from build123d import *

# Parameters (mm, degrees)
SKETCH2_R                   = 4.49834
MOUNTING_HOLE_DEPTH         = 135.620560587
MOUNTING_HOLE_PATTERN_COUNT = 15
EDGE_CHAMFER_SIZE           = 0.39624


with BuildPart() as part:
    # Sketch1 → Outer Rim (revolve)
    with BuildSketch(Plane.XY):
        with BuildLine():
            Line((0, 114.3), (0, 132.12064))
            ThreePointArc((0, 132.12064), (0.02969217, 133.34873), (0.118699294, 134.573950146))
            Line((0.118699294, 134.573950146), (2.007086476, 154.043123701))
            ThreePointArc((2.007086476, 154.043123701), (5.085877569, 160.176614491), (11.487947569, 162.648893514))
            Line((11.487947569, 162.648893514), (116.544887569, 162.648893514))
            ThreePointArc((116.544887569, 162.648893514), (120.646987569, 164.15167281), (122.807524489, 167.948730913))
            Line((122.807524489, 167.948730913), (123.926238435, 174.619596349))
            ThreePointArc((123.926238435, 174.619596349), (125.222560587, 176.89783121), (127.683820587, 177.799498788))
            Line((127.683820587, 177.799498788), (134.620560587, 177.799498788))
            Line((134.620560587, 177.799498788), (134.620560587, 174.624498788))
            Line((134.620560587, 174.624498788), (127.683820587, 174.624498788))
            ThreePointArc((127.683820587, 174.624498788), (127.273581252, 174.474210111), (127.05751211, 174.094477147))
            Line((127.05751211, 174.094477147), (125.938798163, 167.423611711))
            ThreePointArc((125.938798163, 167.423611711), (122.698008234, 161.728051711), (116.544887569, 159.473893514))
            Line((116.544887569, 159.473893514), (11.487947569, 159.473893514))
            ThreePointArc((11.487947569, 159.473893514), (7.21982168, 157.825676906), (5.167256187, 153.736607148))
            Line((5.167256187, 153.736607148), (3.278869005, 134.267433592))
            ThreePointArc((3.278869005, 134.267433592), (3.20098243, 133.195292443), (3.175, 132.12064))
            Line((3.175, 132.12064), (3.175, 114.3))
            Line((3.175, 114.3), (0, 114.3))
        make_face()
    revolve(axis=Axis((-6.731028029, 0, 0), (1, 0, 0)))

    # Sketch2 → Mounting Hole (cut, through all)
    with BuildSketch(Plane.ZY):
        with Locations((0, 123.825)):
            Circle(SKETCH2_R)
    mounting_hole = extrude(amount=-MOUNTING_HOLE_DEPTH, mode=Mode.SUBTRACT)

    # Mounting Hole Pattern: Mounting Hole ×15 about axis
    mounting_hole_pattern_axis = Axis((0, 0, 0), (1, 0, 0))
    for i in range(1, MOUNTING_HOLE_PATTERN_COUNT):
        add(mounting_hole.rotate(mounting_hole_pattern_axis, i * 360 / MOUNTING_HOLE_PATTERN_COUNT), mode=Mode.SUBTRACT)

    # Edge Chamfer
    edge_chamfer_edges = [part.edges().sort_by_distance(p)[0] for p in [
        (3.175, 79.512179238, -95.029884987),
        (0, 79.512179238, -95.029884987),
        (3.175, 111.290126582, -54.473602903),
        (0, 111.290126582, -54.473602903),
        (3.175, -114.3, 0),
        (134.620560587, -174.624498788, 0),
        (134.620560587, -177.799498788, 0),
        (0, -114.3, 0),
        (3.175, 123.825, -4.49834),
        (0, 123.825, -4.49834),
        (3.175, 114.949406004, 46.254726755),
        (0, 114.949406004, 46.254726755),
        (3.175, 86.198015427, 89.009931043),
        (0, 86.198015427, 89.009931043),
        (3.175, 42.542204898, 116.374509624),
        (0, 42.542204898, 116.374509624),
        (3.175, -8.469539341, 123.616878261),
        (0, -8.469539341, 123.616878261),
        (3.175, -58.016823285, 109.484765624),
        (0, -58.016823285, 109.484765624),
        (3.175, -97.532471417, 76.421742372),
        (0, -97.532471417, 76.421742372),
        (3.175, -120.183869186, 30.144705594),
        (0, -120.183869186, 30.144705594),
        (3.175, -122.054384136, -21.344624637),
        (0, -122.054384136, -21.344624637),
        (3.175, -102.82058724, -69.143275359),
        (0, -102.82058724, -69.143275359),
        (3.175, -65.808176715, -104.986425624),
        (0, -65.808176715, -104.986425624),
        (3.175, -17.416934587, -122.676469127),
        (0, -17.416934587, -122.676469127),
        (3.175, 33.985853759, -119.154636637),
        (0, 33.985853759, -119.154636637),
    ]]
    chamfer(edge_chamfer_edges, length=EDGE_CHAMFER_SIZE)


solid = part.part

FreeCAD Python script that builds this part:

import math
import FreeCAD as App
import Part
import Sketcher
from FreeCAD import Vector
Q = App.Units.Quantity


def edges_at(feature, points):
    """Names of the edges that pass closest to the given points."""
    edges = feature.Shape.Edges
    near = lambda p: min(range(len(edges)), key=lambda i: edges[i].distToShape(Part.Vertex(*p))[0])
    return sorted({f"Edge{near(p) + 1}" for p in points})

doc = App.newDocument("Part")
body = doc.addObject("PartDesign::Body", "Body")

# Sketch on XY plane
sketch1 = doc.addObject("Sketcher::SketchObject", "Sketch")
body.addObject(sketch1)
sketch1.AttachmentSupport = (doc.XY_Plane, [""])
sketch1.MapMode = "FlatFace"
sketch1.addGeometry([
    Part.LineSegment(Vector(0, 132.1, 0), Vector(0, 114.3, 0)),  # 0
    Part.LineSegment(Vector(0, 114.3, 0), Vector(3.2, 114.3, 0)),  # 1
    Part.LineSegment(Vector(3.2, 114.3, 0), Vector(3.2, 132.1, 0)),  # 2
    Part.ArcOfCircle(Part.Circle(Vector(25.4, 132.1, 0), Vector(0, 0, 1), 22.2), math.radians(174.46), math.radians(180)),  # 3
    Part.LineSegment(Vector(3.3, 134.3, 0), Vector(5.2, 153.7, 0)),  # 4
    Part.ArcOfCircle(Part.Circle(Vector(11.5, 153.1, 0), Vector(0, 0, 1), 6.4), math.radians(90), math.radians(174)),  # 5
    Part.LineSegment(Vector(11.5, 159.5, 0), Vector(116.5, 159.5, 0)),  # 6
    Part.ArcOfCircle(Part.Circle(Vector(116.5, 169, 0), Vector(0, 0, 1), 9.5), math.radians(-90), math.radians(-10)),  # 7
    Part.LineSegment(Vector(125.9, 167.4, 0), Vector(127.1, 174.1, 0)),  # 8
    Part.ArcOfCircle(Part.Circle(Vector(127.7, 174, 0), Vector(0, 0, 1), 0.6), math.radians(90), math.radians(170)),  # 9
    Part.LineSegment(Vector(127.7, 174.6, 0), Vector(134.6, 174.6, 0)),  # 10
    Part.LineSegment(Vector(134.6, 174.6, 0), Vector(134.6, 177.8, 0)),  # 11
    Part.LineSegment(Vector(134.6, 177.8, 0), Vector(127.7, 177.8, 0)),  # 12
    Part.ArcOfCircle(Part.Circle(Vector(127.7, 174, 0), Vector(0, 0, 1), 3.8), math.radians(90), math.radians(170)),  # 13
    Part.LineSegment(Vector(123.9, 174.6, 0), Vector(122.8, 167.9, 0)),  # 14
    Part.ArcOfCircle(Part.Circle(Vector(116.5, 169, 0), Vector(0, 0, 1), 6.4), math.radians(-90), math.radians(-10)),  # 15
    Part.LineSegment(Vector(116.5, 162.6, 0), Vector(11.5, 162.6, 0)),  # 16
    Part.ArcOfCircle(Part.Circle(Vector(11.5, 153.1, 0), Vector(0, 0, 1), 9.5), math.radians(90), math.radians(174)),  # 17
    Part.LineSegment(Vector(2, 154, 0), Vector(0.1, 134.6, 0)),  # 18
    Part.ArcOfCircle(Part.Circle(Vector(25.4, 132.1, 0), Vector(0, 0, 1), 25.4), math.radians(174.46), math.radians(180)),  # 19
], False)
sketch1.addConstraint([
    Sketcher.Constraint("Coincident", 0, 2, 1, 1),
    Sketcher.Constraint("Coincident", 1, 2, 2, 1),
    Sketcher.Constraint("Tangent", 2, 2, 3, 2),
    Sketcher.Constraint("Tangent", 3, 1, 4, 1),
    Sketcher.Constraint("Tangent", 4, 2, 5, 2),
    Sketcher.Constraint("Tangent", 5, 1, 6, 1),
    Sketcher.Constraint("Tangent", 6, 2, 7, 1),
    Sketcher.Constraint("Tangent", 7, 2, 8, 1),
    Sketcher.Constraint("Tangent", 8, 2, 9, 2),
    Sketcher.Constraint("Tangent", 9, 1, 10, 1),
    Sketcher.Constraint("Coincident", 10, 2, 11, 1),
    Sketcher.Constraint("Coincident", 11, 2, 12, 1),
    Sketcher.Constraint("Tangent", 12, 2, 13, 1),
    Sketcher.Constraint("Tangent", 13, 2, 14, 1),
    Sketcher.Constraint("Tangent", 14, 2, 15, 2),
    Sketcher.Constraint("Tangent", 15, 1, 16, 1),
    Sketcher.Constraint("Tangent", 16, 2, 17, 1),
    Sketcher.Constraint("Tangent", 17, 2, 18, 1),
    Sketcher.Constraint("Tangent", 18, 2, 19, 1),
    Sketcher.Constraint("Tangent", 19, 2, 0, 1),
    Sketcher.Constraint("Vertical", 0),
    Sketcher.Constraint("Horizontal", 1),
    Sketcher.Constraint("Vertical", 2),
    Sketcher.Constraint("Horizontal", 6),
    Sketcher.Constraint("Horizontal", 10),
    Sketcher.Constraint("Vertical", 11),
    Sketcher.Constraint("Horizontal", 12),
    Sketcher.Constraint("Horizontal", 16),
    Sketcher.Constraint("Coincident", 13, 3, 9, 3),
    Sketcher.Constraint("Coincident", 15, 3, 7, 3),
    Sketcher.Constraint("Coincident", 17, 3, 5, 3),
    Sketcher.Constraint("Coincident", 19, 3, 3, 3),
    Sketcher.Constraint("PointOnObject", 0, 2, -2),
    Sketcher.Constraint("Parallel", 8, 14),
    Sketcher.Constraint("Parallel", 4, 18),
    Sketcher.Constraint("DistanceY", -1, 1, 0, 2, Q("4.5 in")),
    Sketcher.Constraint("DistanceX", 1, 1, 1, 2, Q("0.125 in")),
    Sketcher.Constraint("Angle", 4, Q("84.46 deg")),
    Sketcher.Constraint("Angle", 8, Q("80.48 deg")),
    Sketcher.Constraint("Radius", 3, 22.237199),
    Sketcher.Constraint("DistanceX", 6, 1, 6, 2, Q("4.1361 in")),
    Sketcher.Constraint("DistanceX", 10, 1, 10, 2, Q("0.2731 in")),
    Sketcher.Constraint("DistanceY", 0, 2, 0, 1, Q("0.7016 in")),
    Sketcher.Constraint("Radius", 7, 9.525091),
    Sketcher.Constraint("Distance", 4, Q("0.7701 in")),
    Sketcher.Constraint("Distance", 8, Q("0.2663 in")),
    Sketcher.Constraint("Radius", 5, 6.350354),
    Sketcher.Constraint("Radius", 9, 0.635054),
])
revolution = doc.addObject("PartDesign::Revolution", "Revolution")
body.addObject(revolution)
revolution.Profile = sketch1
revolution.ReferenceAxis = (sketch1, ["H_Axis"])
revolution.Angle = 360

# Sketch on YZ plane
sketch2 = doc.addObject("Sketcher::SketchObject", "Sketch001")
body.addObject(sketch2)
sketch2.AttachmentSupport = (doc.YZ_Plane, [""])
sketch2.MapMode = "FlatFace"
sketch2.addGeometry(Part.Circle(Vector(123.8, 0, 0), Vector(0, 0, 1), 4.5), False)
sketch2.addConstraint([
    Sketcher.Constraint("PointOnObject", 0, 3, -1),
    Sketcher.Constraint("Diameter", 0, Q("0.3542 in")),
    Sketcher.Constraint("DistanceX", -1, 1, 0, 3, Q("4.875 in")),
])
pocket1 = doc.addObject("PartDesign::Pocket", "Pocket")
body.addObject(pocket1)
pocket1.Profile = sketch2
pocket1.Type = "ThroughAll"
pocket1.Reversed = True
doc.recompute()

polarpattern = doc.addObject("PartDesign::PolarPattern", "PolarPattern")
body.addObject(polarpattern)
polarpattern.Originals = [pocket1]
polarpattern.Axis = (doc.X_Axis, [""])
polarpattern.Angle = 360
polarpattern.Occurrences = 15
body.Tip = polarpattern
doc.recompute()

chamfer = doc.addObject("PartDesign::Chamfer", "Chamfer")
body.addObject(chamfer)
chamfer.Base = (polarpattern, edges_at(polarpattern, [
    (3.175, 79.512, -95.03),
    (0, 79.512, -95.03),
    (3.175, 111.29, -54.474),
    (0, 111.29, -54.474),
    (3.175, -114.3, 0),
    (134.621, -174.624, 0),
    (134.621, -177.799, 0),
    (0, -114.3, 0),
    (3.175, 123.825, -4.498),
    (0, 123.825, -4.498),
    (3.175, 114.949, 46.255),
    (0, 114.949, 46.255),
    (3.175, 86.198, 89.01),
    (0, 86.198, 89.01),
    (3.175, 42.542, 116.375),
    (0, 42.542, 116.375),
    (3.175, -8.47, 123.617),
    (0, -8.47, 123.617),
    (3.175, -58.017, 109.485),
    (0, -58.017, 109.485),
    (3.175, -97.532, 76.422),
    (0, -97.532, 76.422),
    (3.175, -120.184, 30.145),
    (0, -120.184, 30.145),
    (3.175, -122.054, -21.345),
    (0, -122.054, -21.345),
    (3.175, -102.821, -69.143),
    (0, -102.821, -69.143),
    (3.175, -65.808, -104.986),
    (0, -65.808, -104.986),
    (3.175, -17.417, -122.676),
    (0, -17.417, -122.676),
    (3.175, 33.986, -119.155),
    (0, 33.986, -119.155),
]))
chamfer.Size = Q("0.0156 in")

doc.recompute()
